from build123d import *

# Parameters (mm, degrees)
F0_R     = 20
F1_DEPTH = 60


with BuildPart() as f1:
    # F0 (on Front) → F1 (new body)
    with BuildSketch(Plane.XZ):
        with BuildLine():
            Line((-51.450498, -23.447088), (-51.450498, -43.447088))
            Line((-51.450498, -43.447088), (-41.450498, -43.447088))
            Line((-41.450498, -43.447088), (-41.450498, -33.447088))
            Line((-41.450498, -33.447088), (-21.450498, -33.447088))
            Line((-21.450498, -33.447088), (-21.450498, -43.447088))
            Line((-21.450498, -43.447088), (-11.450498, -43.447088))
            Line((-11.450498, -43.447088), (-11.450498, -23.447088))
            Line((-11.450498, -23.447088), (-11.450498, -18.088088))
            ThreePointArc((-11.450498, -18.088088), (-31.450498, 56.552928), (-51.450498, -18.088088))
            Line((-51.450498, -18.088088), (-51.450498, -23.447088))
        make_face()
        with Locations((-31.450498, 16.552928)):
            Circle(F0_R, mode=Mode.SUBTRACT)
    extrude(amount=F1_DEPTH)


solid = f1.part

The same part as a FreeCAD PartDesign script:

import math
import FreeCAD as App
import Part
import Sketcher
Q = App.Units.Quantity

doc = App.newDocument("Part")
body = doc.addObject("PartDesign::Body", "Body")

sketch1 = body.newObject("Sketcher::SketchObject", "Sketch")
sketch1.AttachmentSupport = (doc.getObject("XZ_Plane"), [""])
sketch1.MapMode = "FlatFace"
sketch1.addGeometry([
    Part.LineSegment(App.Vector(-51, -43, 0), App.Vector(-41, -43, 0)),
    Part.LineSegment(App.Vector(-41, -43, 0), App.Vector(-41, -33, 0)),
    Part.LineSegment(App.Vector(-41, -33, 0), App.Vector(-21, -33, 0)),
    Part.LineSegment(App.Vector(-21, -33, 0), App.Vector(-21, -43, 0)),
    Part.LineSegment(App.Vector(-21, -43, 0), App.Vector(-11, -43, 0)),
    Part.LineSegment(App.Vector(-11, -43, 0), App.Vector(-11, -18, 0)),
    Part.ArcOfCircle(Part.Circle(App.Vector(-31, 17, 0), App.Vector(0, 0, 1), 40), math.radians(-60), math.radians(240)),
    Part.LineSegment(App.Vector(-51, -18, 0), App.Vector(-51, -43, 0)),
    Part.Circle(App.Vector(-31, 17, 0), App.Vector(0, 0, 1), 20),
], False)
sketch1.addConstraint([
    Sketcher.Constraint("Coincident", 0, 2, 1, 1),
    Sketcher.Constraint("Coincident", 1, 2, 2, 1),
    Sketcher.Constraint("Coincident", 2, 2, 3, 1),
    Sketcher.Constraint("Coincident", 3, 2, 4, 1),
    Sketcher.Constraint("Coincident", 4, 2, 5, 1),
    Sketcher.Constraint("Coincident", 5, 2, 6, 1),
    Sketcher.Constraint("Coincident", 6, 2, 7, 1),
    Sketcher.Constraint("Coincident", 7, 2, 0, 1),
    Sketcher.Constraint("Horizontal", 0),
    Sketcher.Constraint("Vertical", 1),
    Sketcher.Constraint("Horizontal", 2),
    Sketcher.Constraint("Vertical", 3),
    Sketcher.Constraint("Horizontal", 4),
    Sketcher.Constraint("Vertical", 5),
    Sketcher.Constraint("Vertical", 7),
    Sketcher.Constraint("Coincident", 8, 3, 6, 3),
    Sketcher.Constraint("Horizontal", 0, 2, 3, 2),
    Sketcher.Constraint("Horizontal", 5, 2, 6, 2),
    Sketcher.Constraint("Equal", 0, 4),
    Sketcher.Constraint("Equal", 4, 1),
    Sketcher.Constraint("Diameter", 8, Q("40 mm")),
    Sketcher.Constraint("Radius", 6, Q("40 mm")),
    Sketcher.Constraint("DistanceX", 0, 1, 0, 2, Q("10 mm")),
    Sketcher.Constraint("DistanceX", 2, 1, 2, 2, Q("20 mm")),
    Sketcher.Constraint("DistanceY", 5, 1, 5, 2, Q("25.359 mm")),
    Sketcher.Constraint("DistanceX", 0, 2, -1, 1, Q("41.450498 mm")),
    Sketcher.Constraint("DistanceY", -1, 1, 6, 3, Q("16.552928 mm")),
])
pad1 = body.newObject("PartDesign::Pad", "Pad")
pad1.Profile = sketch1
pad1.Length = 60

doc.recompute()
